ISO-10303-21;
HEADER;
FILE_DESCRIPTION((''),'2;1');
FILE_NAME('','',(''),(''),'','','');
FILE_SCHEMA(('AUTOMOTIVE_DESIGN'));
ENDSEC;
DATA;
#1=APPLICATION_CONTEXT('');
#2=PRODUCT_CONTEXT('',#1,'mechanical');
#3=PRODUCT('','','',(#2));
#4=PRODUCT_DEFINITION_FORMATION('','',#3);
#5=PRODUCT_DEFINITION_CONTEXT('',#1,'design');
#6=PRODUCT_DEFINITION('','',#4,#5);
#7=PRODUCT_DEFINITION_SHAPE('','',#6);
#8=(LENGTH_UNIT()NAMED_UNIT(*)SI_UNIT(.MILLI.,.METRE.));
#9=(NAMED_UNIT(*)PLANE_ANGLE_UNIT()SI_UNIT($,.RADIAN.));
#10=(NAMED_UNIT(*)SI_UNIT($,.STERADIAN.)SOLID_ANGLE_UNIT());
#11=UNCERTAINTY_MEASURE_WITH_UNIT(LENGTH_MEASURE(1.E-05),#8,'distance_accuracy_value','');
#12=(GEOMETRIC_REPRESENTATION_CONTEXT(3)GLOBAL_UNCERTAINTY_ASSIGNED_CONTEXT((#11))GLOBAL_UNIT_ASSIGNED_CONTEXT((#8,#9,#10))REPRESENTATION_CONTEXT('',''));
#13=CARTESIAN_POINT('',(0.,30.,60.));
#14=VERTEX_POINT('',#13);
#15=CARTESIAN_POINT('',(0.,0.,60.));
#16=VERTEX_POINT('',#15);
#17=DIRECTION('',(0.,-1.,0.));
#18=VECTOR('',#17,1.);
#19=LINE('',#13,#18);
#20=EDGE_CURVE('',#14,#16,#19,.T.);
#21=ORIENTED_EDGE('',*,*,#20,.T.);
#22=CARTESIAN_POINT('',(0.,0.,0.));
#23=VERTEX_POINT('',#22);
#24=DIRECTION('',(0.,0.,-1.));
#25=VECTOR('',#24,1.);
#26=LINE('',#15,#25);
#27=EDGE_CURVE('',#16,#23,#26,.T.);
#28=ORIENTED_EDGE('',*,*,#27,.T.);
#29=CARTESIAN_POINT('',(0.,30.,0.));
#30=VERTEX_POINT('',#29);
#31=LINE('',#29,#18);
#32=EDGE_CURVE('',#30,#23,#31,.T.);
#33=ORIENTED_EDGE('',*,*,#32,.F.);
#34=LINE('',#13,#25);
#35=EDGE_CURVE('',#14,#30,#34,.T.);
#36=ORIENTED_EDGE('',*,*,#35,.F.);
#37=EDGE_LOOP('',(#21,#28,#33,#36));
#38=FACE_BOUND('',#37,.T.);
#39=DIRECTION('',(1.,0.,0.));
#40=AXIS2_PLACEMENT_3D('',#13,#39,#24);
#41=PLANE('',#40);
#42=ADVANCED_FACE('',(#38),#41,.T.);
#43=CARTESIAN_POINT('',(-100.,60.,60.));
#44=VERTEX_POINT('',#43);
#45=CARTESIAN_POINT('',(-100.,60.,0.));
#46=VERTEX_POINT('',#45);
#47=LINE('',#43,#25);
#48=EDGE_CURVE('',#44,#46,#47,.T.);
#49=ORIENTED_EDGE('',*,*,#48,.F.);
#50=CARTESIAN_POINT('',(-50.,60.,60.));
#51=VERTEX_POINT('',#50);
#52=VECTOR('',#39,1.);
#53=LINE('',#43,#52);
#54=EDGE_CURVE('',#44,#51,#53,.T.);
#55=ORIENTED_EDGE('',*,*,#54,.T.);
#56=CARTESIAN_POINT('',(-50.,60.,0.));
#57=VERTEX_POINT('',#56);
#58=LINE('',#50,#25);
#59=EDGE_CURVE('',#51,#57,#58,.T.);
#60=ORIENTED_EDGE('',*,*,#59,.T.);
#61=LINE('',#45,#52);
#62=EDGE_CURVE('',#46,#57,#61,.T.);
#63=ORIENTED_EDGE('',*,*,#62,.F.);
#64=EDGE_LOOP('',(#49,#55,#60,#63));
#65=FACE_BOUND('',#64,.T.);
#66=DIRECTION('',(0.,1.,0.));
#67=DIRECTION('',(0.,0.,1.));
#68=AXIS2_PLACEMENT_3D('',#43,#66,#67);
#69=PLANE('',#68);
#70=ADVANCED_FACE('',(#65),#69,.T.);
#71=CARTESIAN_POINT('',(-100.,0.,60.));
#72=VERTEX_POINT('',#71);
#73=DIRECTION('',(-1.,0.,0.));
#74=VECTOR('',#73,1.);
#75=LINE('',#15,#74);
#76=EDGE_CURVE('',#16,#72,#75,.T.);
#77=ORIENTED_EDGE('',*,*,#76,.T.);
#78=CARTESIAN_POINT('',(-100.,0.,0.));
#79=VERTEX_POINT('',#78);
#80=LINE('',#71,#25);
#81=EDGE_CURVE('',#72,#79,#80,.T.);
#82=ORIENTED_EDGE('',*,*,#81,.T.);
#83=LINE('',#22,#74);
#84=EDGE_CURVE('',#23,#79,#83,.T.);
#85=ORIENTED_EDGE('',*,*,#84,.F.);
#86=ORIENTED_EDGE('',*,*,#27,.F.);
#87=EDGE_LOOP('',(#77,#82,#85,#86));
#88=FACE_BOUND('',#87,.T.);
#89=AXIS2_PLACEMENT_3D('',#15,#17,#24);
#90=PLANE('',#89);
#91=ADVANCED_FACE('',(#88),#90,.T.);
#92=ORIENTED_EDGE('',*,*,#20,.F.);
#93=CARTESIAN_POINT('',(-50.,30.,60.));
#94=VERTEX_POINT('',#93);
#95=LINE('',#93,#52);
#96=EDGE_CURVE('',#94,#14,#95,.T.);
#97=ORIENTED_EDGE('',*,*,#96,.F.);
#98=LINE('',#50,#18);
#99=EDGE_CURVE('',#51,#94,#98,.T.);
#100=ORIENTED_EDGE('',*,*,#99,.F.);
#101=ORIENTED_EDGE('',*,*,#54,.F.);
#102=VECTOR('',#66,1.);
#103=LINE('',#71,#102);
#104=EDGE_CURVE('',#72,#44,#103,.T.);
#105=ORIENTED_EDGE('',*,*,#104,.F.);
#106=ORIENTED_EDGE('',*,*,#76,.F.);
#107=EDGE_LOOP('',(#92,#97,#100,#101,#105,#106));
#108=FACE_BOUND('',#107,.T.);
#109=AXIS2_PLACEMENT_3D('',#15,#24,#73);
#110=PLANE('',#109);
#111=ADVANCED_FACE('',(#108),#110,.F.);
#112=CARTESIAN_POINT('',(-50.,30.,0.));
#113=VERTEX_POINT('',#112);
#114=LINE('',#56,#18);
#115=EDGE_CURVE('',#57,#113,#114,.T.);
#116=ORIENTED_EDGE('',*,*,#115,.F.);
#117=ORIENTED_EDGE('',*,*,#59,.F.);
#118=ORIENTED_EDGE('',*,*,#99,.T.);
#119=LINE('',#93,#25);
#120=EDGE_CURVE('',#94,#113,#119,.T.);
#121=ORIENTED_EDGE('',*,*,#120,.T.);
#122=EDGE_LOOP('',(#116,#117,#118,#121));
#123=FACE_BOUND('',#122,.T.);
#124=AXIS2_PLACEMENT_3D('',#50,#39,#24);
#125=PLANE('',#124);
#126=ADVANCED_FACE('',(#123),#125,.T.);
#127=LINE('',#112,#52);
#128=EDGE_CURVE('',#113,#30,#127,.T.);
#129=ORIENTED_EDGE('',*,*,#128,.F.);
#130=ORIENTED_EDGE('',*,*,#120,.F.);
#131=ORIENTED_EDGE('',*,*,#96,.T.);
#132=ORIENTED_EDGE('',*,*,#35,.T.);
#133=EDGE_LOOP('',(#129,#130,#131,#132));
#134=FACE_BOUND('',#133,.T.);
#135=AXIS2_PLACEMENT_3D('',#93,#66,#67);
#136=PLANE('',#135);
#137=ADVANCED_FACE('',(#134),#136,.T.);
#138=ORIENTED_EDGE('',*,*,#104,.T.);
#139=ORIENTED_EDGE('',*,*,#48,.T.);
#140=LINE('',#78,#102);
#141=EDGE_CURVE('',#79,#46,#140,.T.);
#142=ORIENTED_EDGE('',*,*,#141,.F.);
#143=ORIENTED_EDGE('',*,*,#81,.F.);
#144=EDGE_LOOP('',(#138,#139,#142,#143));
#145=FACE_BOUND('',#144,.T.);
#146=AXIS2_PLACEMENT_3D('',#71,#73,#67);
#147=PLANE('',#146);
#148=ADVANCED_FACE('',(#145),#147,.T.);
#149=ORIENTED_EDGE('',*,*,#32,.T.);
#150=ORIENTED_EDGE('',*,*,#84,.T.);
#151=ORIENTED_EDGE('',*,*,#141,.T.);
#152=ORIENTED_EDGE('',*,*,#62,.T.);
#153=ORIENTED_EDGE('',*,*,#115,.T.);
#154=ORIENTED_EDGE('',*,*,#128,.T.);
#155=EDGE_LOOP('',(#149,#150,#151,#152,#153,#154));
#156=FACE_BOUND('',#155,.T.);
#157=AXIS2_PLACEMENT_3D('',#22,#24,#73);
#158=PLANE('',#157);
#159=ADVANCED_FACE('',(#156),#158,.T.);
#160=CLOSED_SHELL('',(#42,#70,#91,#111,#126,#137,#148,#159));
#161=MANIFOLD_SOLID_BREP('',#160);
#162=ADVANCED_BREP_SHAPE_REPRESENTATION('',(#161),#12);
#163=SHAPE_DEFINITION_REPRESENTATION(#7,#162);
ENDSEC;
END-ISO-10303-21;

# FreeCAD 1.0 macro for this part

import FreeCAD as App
import Part
import Sketcher
Q = App.Units.Quantity


def add_polygon(sketch, points):
    """Adds a closed chain of lines whose ends are joined by coincident constraints."""
    first, n = sketch.GeometryCount, len(points)
    for a, b in zip(points, points[1:] + points[:1]):
        sketch.addGeometry(Part.LineSegment(App.Vector(*a, 0), App.Vector(*b, 0)), False)
    for i in range(n):
        sketch.addConstraint(Sketcher.Constraint("Coincident", first + i, 2, first + (i + 1) % n, 1))

doc = App.newDocument("Part")
params = doc.addObject("Spreadsheet::Sheet", "Params")
for row, (alias, value) in enumerate([
    ("sketch1_width", "100 mm"),
    ("sketch1_height", "30 mm"),
    ("pad1_length", "60 mm"),
], start=1):
    params.set(f"A{row}", alias)
    params.set(f"B{row}", "=" + value)
    params.setAlias(f"B{row}", alias)

body = doc.addObject("PartDesign::Body", "Body")

sketch1 = body.newObject("Sketcher::SketchObject", "Sketch")
sketch1.AttachmentSupport = (doc.getObject("XY_Plane"), [""])
sketch1.MapMode = "FlatFace"
add_polygon(sketch1, [(-100, 0), (0, 0), (0, 30), (-50, 30), (-50, 60), (-100, 60)])
sketch1.addConstraint([
    Sketcher.Constraint("Horizontal", 0),
    Sketcher.Constraint("Vertical", 1),
    Sketcher.Constraint("Horizontal", 2),
    Sketcher.Constraint("Vertical", 3),
    Sketcher.Constraint("Horizontal", 4),
    Sketcher.Constraint("Vertical", 5),
    Sketcher.Constraint("Coincident", 0, 2, -1, 1),
    Sketcher.Constraint("Equal", 2, 4),
    Sketcher.Constraint("Equal", 1, 3),
    Sketcher.Constraint("DistanceX", 0, 1, 0, 2, Q("100 mm")),
    Sketcher.Constraint("DistanceY", 1, 1, 1, 2, Q("30 mm")),
])
sketch1.setExpression("Constraints[15]", "Params.sketch1_width")
sketch1.setExpression("Constraints[16]", "Params.sketch1_height")
pad1 = body.newObject("PartDesign::Pad", "Pad")
pad1.Profile = sketch1
pad1.setExpression("Length", "Params.pad1_length")

doc.recompute()
